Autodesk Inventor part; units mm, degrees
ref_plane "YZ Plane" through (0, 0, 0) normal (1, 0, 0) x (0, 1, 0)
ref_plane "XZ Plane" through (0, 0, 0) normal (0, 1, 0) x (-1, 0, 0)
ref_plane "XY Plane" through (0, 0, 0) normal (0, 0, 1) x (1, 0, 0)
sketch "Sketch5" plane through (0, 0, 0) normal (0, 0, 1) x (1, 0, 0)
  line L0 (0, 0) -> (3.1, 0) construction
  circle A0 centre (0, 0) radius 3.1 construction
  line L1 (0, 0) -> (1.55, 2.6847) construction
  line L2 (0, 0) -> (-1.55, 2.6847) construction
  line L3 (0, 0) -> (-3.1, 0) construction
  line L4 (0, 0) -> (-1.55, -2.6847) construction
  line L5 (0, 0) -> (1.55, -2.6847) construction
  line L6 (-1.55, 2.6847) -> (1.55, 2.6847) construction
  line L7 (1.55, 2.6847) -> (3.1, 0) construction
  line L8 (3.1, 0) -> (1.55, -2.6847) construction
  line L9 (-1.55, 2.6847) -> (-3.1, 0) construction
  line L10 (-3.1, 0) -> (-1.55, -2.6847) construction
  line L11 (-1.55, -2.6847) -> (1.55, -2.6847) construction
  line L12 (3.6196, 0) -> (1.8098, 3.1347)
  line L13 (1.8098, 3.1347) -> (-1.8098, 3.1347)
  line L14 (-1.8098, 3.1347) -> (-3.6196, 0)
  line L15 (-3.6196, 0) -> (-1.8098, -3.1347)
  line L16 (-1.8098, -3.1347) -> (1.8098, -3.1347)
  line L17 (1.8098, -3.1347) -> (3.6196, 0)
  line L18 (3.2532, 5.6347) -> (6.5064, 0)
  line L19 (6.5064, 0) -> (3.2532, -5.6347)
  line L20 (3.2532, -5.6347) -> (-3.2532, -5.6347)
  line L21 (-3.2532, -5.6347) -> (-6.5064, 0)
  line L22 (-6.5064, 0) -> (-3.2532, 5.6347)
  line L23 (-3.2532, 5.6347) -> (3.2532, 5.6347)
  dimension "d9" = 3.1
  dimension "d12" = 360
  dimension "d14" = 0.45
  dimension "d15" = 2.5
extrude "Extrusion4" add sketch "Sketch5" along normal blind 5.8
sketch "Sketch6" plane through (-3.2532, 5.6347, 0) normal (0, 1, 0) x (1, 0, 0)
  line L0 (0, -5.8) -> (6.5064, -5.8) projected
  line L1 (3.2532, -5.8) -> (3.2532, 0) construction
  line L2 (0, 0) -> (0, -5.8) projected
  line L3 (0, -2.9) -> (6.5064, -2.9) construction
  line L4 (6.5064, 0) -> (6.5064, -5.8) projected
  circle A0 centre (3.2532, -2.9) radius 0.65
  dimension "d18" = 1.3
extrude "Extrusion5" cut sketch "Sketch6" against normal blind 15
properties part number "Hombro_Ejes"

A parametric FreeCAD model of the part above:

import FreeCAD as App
import Part
import Sketcher
Q = App.Units.Quantity


def add_polygon(sketch, points):
    """Adds a closed chain of lines whose ends are joined by coincident constraints."""
    first, n = sketch.GeometryCount, len(points)
    for a, b in zip(points, points[1:] + points[:1]):
        sketch.addGeometry(Part.LineSegment(App.Vector(*a, 0), App.Vector(*b, 0)), False)
    for i in range(n):
        sketch.addConstraint(Sketcher.Constraint("Coincident", first + i, 2, first + (i + 1) % n, 1))

doc = App.newDocument("Part")
body = doc.addObject("PartDesign::Body", "Body")

sketch1 = doc.addObject("Sketcher::SketchObject", "Sketch")
body.addObject(sketch1)
sketch1.AttachmentSupport = (doc.XY_Plane, [""])
sketch1.MapMode = "FlatFace"
add_polygon(sketch1, [(6.5, 0), (3.3, 5.6), (-3.3, 5.6), (-6.5, 0), (-3.3, -5.6), (3.3, -5.6)])
add_polygon(sketch1, [(1.8, 3.1), (3.6, 0), (1.8, -3.1), (-1.8, -3.1), (-3.6, 0), (-1.8, 3.1)])
sketch1.addConstraint([
    Sketcher.Constraint("Horizontal", 1),
    Sketcher.Constraint("Horizontal", 4),
    Sketcher.Constraint("Horizontal", 8),
    Sketcher.Constraint("Horizontal", 11),
    Sketcher.Constraint("Symmetric", 0, 2, 3, 2, -1, 1),
    Sketcher.Constraint("Symmetric", 2, 2, 5, 2, -1, 1),
    Sketcher.Constraint("Symmetric", 6, 2, 9, 2, -1, 1),
    Sketcher.Constraint("Symmetric", 7, 2, 10, 2, -1, 1),
    Sketcher.Constraint("PointOnObject", 2, 2, -1),
    Sketcher.Constraint("PointOnObject", 6, 2, -1),
    Sketcher.Constraint("Parallel", 2, 5),
    Sketcher.Constraint("Parallel", 3, 6),
    Sketcher.Constraint("Parallel", 5, 7),
    Sketcher.Constraint("Parallel", 6, 9),
    Sketcher.Constraint("Vertical", 1, 2, 3, 2),
    Sketcher.Constraint("DistanceY", 4, 2, 7, 2, Q("2.5 mm")),
    Sketcher.Constraint("Angle", 0, Q("120 deg")),
    Sketcher.Constraint("DistanceX", 1, 2, 1, 1, Q("6.5064 mm")),
    Sketcher.Constraint("DistanceX", 8, 2, 8, 1, Q("3.6196 mm")),
    Sketcher.Constraint("Distance", 0, Q("6.5064 mm")),
])
pad1 = doc.addObject("PartDesign::Pad", "Pad")
body.addObject(pad1)
pad1.Profile = sketch1
pad1.Length = 5.8

sketch2 = doc.addObject("Sketcher::SketchObject", "Sketch001")
body.addObject(sketch2)
sketch2.AttachmentSupport = (doc.XZ_Plane, [""])
sketch2.MapMode = "FlatFace"
sketch2.AttachmentOffset = App.Placement(App.Vector(0, 0, -5.6347), App.Rotation())
sketch2.addGeometry(Part.Circle(App.Vector(0, 2.9, 0), App.Vector(0, 0, 1), 0.7), False)
sketch2.addConstraint([
    Sketcher.Constraint("PointOnObject", 0, 3, -2),
    Sketcher.Constraint("Diameter", 0, Q("1.3 mm")),
    Sketcher.Constraint("DistanceY", -1, 1, 0, 3, Q("2.9 mm")),
])
pocket1 = doc.addObject("PartDesign::Pocket", "Pocket")
body.addObject(pocket1)
pocket1.Profile = sketch2
pocket1.Length = 15
pocket1.Reversed = True

doc.recompute()
